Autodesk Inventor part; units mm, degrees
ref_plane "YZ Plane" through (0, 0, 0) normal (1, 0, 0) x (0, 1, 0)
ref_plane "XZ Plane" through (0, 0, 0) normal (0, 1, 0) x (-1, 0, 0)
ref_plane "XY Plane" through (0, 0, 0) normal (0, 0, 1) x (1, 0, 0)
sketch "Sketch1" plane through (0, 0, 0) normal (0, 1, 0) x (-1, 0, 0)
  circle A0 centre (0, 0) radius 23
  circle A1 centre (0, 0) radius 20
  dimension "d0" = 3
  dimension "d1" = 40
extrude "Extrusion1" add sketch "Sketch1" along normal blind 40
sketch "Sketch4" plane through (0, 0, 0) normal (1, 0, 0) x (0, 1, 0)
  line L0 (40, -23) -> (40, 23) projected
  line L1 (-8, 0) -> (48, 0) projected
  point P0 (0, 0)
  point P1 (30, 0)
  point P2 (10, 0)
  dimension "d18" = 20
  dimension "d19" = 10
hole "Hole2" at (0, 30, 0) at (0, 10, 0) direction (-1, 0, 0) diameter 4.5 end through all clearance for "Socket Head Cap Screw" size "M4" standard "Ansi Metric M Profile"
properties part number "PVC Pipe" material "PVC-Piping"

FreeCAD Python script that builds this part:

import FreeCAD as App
import Part
import Sketcher
Q = App.Units.Quantity

doc = App.newDocument("Part")
body = doc.addObject("PartDesign::Body", "Body")

# Sketch on XZ plane
sketch1 = body.newObject("Sketcher::SketchObject", "Sketch")
sketch1.AttachmentSupport = (doc.getObject("XZ_Plane"), [""])
sketch1.MapMode = "FlatFace"
sketch1.addGeometry([
    Part.Circle(App.Vector(0, 0, 0), App.Vector(0, 0, 1), 23),
    Part.Circle(App.Vector(0, 0, 0), App.Vector(0, 0, 1), 20),
], False)
sketch1.addConstraint([
    Sketcher.Constraint("Coincident", 0, 3, -1, 1),
    Sketcher.Constraint("Coincident", 1, 3, -1, 1),
    Sketcher.Constraint("Diameter", 1, Q("40 mm")),
    Sketcher.Constraint("Diameter", 0, Q("46 mm")),
])
pad1 = body.newObject("PartDesign::Pad", "Pad")
pad1.Profile = sketch1
pad1.Length = 40
pad1.Reversed = True

# Sketch on YZ plane
sketch2 = body.newObject("Sketcher::SketchObject", "Sketch001")
sketch2.AttachmentSupport = (doc.getObject("YZ_Plane"), [""])
sketch2.MapMode = "FlatFace"
sketch2.addGeometry([
    Part.Circle(App.Vector(30, 0, 0), App.Vector(0, 0, 1), 2.25),
    Part.Circle(App.Vector(10, 0, 0), App.Vector(0, 0, 1), 2.25),
], False)
sketch2.addConstraint([
    Sketcher.Constraint("Equal", 0, 1),
    Sketcher.Constraint("PointOnObject", 0, 3, -1),
    Sketcher.Constraint("PointOnObject", 1, 3, -1),
    Sketcher.Constraint("Diameter", 0, Q("4.5 mm")),
    Sketcher.Constraint("DistanceX", -1, 1, 0, 3, Q("30 mm")),
    Sketcher.Constraint("DistanceX", -1, 1, 1, 3, Q("10 mm")),
])
doc.recompute()
hole = body.newObject("PartDesign::Hole", "Hole")
hole.Profile = sketch2
hole.ThreadType = "None"
hole.Diameter = 4.5
hole.DepthType = "ThroughAll"

doc.recompute()
